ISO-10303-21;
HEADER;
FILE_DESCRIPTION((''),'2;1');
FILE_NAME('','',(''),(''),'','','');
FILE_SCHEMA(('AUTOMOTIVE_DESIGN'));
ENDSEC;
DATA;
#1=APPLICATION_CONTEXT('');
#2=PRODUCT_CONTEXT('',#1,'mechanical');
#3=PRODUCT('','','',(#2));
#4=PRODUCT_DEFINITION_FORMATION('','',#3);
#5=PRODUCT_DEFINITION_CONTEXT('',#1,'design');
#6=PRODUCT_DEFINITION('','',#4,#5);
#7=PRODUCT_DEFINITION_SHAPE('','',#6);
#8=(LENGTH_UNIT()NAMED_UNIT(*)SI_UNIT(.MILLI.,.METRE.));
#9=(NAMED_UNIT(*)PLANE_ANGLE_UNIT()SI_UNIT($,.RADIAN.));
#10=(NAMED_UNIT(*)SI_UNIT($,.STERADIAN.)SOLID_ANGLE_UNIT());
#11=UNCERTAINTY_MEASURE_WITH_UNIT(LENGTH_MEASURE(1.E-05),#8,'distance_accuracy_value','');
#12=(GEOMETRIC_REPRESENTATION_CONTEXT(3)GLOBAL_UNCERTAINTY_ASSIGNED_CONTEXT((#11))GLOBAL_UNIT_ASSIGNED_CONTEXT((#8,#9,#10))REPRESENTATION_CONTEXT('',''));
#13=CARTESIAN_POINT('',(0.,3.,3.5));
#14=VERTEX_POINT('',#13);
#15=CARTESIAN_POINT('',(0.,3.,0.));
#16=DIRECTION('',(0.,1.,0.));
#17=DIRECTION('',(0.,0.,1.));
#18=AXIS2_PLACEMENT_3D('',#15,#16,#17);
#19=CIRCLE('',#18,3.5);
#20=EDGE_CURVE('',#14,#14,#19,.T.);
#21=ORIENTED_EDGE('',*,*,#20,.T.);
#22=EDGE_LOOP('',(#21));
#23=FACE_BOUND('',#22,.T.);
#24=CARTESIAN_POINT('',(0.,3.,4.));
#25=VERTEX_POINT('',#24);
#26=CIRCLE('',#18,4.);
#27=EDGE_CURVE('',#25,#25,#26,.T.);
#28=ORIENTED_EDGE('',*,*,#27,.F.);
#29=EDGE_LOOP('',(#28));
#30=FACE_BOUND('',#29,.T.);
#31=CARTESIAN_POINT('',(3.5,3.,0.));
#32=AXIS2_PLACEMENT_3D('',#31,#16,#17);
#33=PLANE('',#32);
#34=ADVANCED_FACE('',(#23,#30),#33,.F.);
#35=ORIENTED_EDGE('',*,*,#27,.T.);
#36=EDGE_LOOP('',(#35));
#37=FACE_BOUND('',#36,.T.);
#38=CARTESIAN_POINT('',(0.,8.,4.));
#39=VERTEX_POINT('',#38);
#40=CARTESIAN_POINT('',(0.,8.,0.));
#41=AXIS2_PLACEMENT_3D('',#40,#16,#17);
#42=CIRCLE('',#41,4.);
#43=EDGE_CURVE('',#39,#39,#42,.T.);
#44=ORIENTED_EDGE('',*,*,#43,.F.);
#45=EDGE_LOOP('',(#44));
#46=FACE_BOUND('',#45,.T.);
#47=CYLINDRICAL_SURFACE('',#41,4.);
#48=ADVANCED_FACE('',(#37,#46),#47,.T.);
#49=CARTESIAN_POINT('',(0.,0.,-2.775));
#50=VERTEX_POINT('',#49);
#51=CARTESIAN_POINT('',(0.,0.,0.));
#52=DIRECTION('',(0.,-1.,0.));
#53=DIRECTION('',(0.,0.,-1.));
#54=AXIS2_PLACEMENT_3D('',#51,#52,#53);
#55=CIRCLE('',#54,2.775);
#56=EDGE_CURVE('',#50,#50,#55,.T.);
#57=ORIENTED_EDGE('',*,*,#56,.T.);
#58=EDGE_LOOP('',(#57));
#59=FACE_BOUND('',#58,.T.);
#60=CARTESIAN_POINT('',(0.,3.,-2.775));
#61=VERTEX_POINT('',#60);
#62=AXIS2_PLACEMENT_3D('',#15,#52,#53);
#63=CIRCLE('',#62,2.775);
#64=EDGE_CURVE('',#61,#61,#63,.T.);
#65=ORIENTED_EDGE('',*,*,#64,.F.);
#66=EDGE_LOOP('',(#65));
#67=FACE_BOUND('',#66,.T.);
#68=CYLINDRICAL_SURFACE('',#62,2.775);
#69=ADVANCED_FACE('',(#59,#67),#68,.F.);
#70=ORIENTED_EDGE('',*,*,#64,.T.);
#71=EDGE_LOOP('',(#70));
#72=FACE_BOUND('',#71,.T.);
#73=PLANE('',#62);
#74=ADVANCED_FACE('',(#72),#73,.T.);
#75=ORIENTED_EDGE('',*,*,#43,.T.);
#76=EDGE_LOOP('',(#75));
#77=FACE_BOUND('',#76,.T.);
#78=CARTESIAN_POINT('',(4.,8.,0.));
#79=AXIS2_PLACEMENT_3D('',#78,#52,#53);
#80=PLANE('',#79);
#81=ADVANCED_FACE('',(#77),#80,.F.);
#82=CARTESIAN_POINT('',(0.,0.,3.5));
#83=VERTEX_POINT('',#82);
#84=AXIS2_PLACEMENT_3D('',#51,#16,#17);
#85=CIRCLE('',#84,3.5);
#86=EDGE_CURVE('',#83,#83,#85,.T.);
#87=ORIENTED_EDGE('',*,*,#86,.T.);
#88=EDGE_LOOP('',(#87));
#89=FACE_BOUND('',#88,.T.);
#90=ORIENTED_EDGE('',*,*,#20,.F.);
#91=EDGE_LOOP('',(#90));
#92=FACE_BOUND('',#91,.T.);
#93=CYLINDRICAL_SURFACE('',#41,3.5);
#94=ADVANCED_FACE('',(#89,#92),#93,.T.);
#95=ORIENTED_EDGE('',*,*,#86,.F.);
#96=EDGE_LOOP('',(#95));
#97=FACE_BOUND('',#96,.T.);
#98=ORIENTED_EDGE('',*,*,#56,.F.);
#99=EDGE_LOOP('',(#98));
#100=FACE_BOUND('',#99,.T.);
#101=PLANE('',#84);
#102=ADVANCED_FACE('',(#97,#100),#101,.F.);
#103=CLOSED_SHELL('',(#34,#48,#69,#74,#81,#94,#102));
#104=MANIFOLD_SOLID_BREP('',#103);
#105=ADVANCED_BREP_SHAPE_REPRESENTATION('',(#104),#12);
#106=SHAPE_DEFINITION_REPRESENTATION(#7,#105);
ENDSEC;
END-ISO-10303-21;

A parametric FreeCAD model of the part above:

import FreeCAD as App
import Part
import Sketcher
Q = App.Units.Quantity


def add_polygon(sketch, points):
    """Adds a closed chain of lines whose ends are joined by coincident constraints."""
    first, n = sketch.GeometryCount, len(points)
    for a, b in zip(points, points[1:] + points[:1]):
        sketch.addGeometry(Part.LineSegment(App.Vector(*a, 0), App.Vector(*b, 0)), False)
    for i in range(n):
        sketch.addConstraint(Sketcher.Constraint("Coincident", first + i, 2, first + (i + 1) % n, 1))

doc = App.newDocument("Part")
body = doc.addObject("PartDesign::Body", "Body")

# Sketch on XY plane
sketch1 = doc.addObject("Sketcher::SketchObject", "Sketch")
body.addObject(sketch1)
sketch1.AttachmentSupport = (doc.XY_Plane, [""])
sketch1.MapMode = "FlatFace"
add_polygon(sketch1, [(0, 0), (3.5, 0), (3.5, 3), (4, 3), (4, 8), (0, 8)])  # lines 0-5
sketch1.addConstraint([
    Sketcher.Constraint("Horizontal", 0),
    Sketcher.Constraint("Vertical", 1),
    Sketcher.Constraint("Horizontal", 2),
    Sketcher.Constraint("Vertical", 3),
    Sketcher.Constraint("Horizontal", 4),
    Sketcher.Constraint("Vertical", 5),
    Sketcher.Constraint("Coincident", 5, 2, -1, 1),
    Sketcher.Constraint("DistanceX", 4, 2, 4, 1, Q("4 mm")),
    Sketcher.Constraint("DistanceY", 1, 1, 1, 2, Q("3 mm")),
    Sketcher.Constraint("DistanceY", 3, 1, 3, 2, Q("5 mm")),
    Sketcher.Constraint("DistanceX", 0, 1, 0, 2, Q("3.5 mm")),
])
revolution = doc.addObject("PartDesign::Revolution", "Revolution")
body.addObject(revolution)
revolution.Profile = sketch1
revolution.ReferenceAxis = (sketch1, ["V_Axis"])
revolution.Angle = 360

# Sketch on XZ plane
sketch2 = doc.addObject("Sketcher::SketchObject", "Sketch001")
body.addObject(sketch2)
sketch2.AttachmentSupport = (doc.XZ_Plane, [""])
sketch2.MapMode = "FlatFace"
sketch2.addGeometry(Part.Circle(App.Vector(0, 0, 0), App.Vector(0, 0, 1), 2.8), False)
sketch2.addConstraint([
    Sketcher.Constraint("Coincident", 0, 3, -1, 1),
    Sketcher.Constraint("Diameter", 0, Q("5.55 mm")),
])
pocket1 = doc.addObject("PartDesign::Pocket", "Pocket")
body.addObject(pocket1)
pocket1.Profile = sketch2
pocket1.Length = 3

doc.recompute()
